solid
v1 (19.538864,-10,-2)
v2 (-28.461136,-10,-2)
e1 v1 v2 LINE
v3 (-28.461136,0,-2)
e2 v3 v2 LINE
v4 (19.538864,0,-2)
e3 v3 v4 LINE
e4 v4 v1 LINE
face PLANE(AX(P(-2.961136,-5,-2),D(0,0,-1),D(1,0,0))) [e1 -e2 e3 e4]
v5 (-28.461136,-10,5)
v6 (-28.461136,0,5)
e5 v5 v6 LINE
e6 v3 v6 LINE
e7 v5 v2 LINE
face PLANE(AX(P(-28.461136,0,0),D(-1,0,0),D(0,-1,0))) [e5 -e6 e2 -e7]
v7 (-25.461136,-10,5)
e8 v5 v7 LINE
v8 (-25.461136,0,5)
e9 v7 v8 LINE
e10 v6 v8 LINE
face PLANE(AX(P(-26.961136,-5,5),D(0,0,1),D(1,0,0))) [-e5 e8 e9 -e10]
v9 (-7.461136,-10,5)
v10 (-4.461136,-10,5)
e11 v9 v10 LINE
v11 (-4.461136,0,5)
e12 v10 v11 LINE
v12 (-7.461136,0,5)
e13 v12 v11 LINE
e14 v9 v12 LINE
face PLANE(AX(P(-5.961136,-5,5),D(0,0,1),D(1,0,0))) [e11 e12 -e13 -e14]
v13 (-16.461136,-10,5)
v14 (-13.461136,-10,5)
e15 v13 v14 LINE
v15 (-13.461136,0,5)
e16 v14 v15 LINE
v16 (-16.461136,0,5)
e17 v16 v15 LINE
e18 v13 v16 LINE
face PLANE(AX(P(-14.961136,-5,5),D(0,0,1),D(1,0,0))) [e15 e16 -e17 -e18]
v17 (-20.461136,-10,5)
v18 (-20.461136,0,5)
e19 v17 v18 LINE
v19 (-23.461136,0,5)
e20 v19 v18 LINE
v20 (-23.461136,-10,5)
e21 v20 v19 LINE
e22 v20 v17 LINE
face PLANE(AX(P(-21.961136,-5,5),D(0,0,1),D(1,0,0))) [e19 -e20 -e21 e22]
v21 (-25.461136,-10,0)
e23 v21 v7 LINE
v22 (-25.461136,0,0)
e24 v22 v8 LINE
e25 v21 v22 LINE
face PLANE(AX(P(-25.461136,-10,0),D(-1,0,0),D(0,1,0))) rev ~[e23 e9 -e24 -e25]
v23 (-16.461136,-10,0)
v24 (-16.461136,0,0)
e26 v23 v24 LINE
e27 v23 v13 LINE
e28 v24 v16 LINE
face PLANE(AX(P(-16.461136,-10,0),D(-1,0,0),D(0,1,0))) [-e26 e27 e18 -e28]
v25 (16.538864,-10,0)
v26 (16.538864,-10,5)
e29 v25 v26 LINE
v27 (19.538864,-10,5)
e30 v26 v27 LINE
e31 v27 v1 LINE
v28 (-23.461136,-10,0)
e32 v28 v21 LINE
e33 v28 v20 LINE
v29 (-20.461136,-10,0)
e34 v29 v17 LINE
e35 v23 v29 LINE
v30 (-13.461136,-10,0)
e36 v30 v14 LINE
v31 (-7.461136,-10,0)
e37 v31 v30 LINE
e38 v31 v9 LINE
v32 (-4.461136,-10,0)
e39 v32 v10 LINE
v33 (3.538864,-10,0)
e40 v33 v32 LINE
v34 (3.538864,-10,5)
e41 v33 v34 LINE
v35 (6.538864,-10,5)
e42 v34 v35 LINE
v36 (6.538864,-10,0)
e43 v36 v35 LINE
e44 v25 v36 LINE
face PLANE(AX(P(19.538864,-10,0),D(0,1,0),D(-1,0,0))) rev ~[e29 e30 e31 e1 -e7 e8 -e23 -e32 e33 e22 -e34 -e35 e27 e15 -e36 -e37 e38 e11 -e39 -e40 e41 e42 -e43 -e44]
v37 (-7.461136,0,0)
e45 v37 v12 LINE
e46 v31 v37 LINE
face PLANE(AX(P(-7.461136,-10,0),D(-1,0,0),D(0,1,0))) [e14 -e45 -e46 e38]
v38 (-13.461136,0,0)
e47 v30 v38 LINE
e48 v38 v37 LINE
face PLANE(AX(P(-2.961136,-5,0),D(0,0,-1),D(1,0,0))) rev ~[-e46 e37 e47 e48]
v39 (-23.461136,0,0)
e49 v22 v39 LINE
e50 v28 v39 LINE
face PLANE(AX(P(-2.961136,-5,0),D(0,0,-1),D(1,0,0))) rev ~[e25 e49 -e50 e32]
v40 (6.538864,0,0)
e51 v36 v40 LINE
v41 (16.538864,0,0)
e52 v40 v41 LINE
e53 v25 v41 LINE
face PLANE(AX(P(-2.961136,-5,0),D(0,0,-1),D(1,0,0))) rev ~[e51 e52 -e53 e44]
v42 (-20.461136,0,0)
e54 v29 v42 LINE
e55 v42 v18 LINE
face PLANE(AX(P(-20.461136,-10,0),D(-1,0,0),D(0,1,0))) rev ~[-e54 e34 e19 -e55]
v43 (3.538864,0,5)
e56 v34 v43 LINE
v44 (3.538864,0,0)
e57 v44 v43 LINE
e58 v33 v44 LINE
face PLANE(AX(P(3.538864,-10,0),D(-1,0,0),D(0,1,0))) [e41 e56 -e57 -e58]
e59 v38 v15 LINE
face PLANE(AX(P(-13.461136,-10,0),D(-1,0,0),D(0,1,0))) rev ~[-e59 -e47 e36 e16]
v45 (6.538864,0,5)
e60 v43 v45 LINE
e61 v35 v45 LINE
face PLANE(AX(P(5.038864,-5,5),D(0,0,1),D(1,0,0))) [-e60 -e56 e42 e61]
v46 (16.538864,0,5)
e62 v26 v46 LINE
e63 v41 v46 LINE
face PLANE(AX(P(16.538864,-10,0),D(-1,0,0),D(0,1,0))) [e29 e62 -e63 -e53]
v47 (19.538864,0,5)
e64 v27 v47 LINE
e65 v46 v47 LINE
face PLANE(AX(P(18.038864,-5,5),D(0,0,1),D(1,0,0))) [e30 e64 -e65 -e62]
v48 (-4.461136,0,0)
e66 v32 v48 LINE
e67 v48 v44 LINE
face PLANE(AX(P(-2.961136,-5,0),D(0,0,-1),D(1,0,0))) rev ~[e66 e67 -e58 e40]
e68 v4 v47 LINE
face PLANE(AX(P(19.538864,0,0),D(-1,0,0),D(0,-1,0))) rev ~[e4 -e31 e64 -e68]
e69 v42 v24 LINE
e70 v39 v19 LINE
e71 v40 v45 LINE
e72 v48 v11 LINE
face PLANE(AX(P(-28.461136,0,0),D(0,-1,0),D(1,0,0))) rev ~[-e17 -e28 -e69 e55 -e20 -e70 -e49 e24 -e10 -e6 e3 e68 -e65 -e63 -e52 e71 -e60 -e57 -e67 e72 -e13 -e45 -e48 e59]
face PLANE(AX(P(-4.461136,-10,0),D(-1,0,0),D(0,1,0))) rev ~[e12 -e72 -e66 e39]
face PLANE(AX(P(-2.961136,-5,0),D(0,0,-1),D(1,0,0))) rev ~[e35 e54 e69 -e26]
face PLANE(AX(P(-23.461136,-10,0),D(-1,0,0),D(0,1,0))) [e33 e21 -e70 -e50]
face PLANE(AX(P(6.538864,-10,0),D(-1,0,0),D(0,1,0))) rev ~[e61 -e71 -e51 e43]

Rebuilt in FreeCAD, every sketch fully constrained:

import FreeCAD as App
import Part
import Sketcher

doc = App.newDocument("Part")
params = doc.addObject("Spreadsheet::Sheet", "Params")
for row, (alias, value) in enumerate([
    ("sketch1_width", "3 mm"),
    ("sketch1_height", "10 mm"),
    ("pad1_length", "5 mm"),
    ("sketch2_width", "48 mm"),
    ("sketch2_height", "10 mm"),
    ("pad2_length", "2 mm"),
], start=1):
    params.set(f"A{row}", alias)
    params.set(f"B{row}", "=" + value)
    params.setAlias(f"B{row}", alias)

body = doc.addObject("PartDesign::Body", "Body")
body.AllowCompound = True

sketch1 = doc.addObject("Sketcher::SketchObject", "Sketch")
body.addObject(sketch1)
sketch1.AttachmentSupport = (doc.XY_Plane, [""])
sketch1.MapMode = "FlatFace"
sketch1.addGeometry([
    Part.LineSegment(App.Vector(-28.461136, 0, 0), App.Vector(-28.461136, -10, 0)),
    Part.LineSegment(App.Vector(-28.461136, -10, 0), App.Vector(-25.461136, -10, 0)),
    Part.LineSegment(App.Vector(-25.461136, -10, 0), App.Vector(-25.461136, 0, 0)),
    Part.LineSegment(App.Vector(-25.461136, 0, 0), App.Vector(-28.461136, 0, 0)),
    Part.LineSegment(App.Vector(-23.461136, 0, 0), App.Vector(-23.461136, -10, 0)),
    Part.LineSegment(App.Vector(-23.461136, -10, 0), App.Vector(-20.461136, -10, 0)),
    Part.LineSegment(App.Vector(-20.461136, -10, 0), App.Vector(-20.461136, 0, 0)),
    Part.LineSegment(App.Vector(-20.461136, 0, 0), App.Vector(-23.461136, 0, 0)),
    Part.LineSegment(App.Vector(-16.461136, 0, 0), App.Vector(-16.461136, -10, 0)),
    Part.LineSegment(App.Vector(-16.461136, -10, 0), App.Vector(-13.461136, -10, 0)),
    Part.LineSegment(App.Vector(-13.461136, -10, 0), App.Vector(-13.461136, 0, 0)),
    Part.LineSegment(App.Vector(-13.461136, 0, 0), App.Vector(-16.461136, 0, 0)),
    Part.LineSegment(App.Vector(-7.461136, 0, 0), App.Vector(-7.461136, -10, 0)),
    Part.LineSegment(App.Vector(-7.461136, -10, 0), App.Vector(-4.461136, -10, 0)),
    Part.LineSegment(App.Vector(-4.461136, -10, 0), App.Vector(-4.461136, 0, 0)),
    Part.LineSegment(App.Vector(-4.461136, 0, 0), App.Vector(-7.461136, 0, 0)),
    Part.LineSegment(App.Vector(3.538864, 0, 0), App.Vector(3.538864, -10, 0)),
    Part.LineSegment(App.Vector(3.538864, -10, 0), App.Vector(6.538864, -10, 0)),
    Part.LineSegment(App.Vector(6.538864, -10, 0), App.Vector(6.538864, 0, 0)),
    Part.LineSegment(App.Vector(6.538864, 0, 0), App.Vector(3.538864, 0, 0)),
    Part.LineSegment(App.Vector(16.538864, 0, 0), App.Vector(16.538864, -10, 0)),
    Part.LineSegment(App.Vector(16.538864, -10, 0), App.Vector(19.538864, -10, 0)),
    Part.LineSegment(App.Vector(19.538864, -10, 0), App.Vector(19.538864, 0, 0)),
    Part.LineSegment(App.Vector(19.538864, 0, 0), App.Vector(16.538864, 0, 0)),
], False)
sketch1.addConstraint([
    Sketcher.Constraint("Coincident", 0, 2, 1, 1),
    Sketcher.Constraint("Coincident", 1, 2, 2, 1),
    Sketcher.Constraint("Coincident", 2, 2, 3, 1),
    Sketcher.Constraint("Coincident", 3, 2, 0, 1),
    Sketcher.Constraint("Coincident", 4, 2, 5, 1),
    Sketcher.Constraint("Coincident", 5, 2, 6, 1),
    Sketcher.Constraint("Coincident", 6, 2, 7, 1),
    Sketcher.Constraint("Coincident", 7, 2, 4, 1),
    Sketcher.Constraint("Coincident", 8, 2, 9, 1),
    Sketcher.Constraint("Coincident", 9, 2, 10, 1),
    Sketcher.Constraint("Coincident", 10, 2, 11, 1),
    Sketcher.Constraint("Coincident", 11, 2, 8, 1),
    Sketcher.Constraint("Coincident", 12, 2, 13, 1),
    Sketcher.Constraint("Coincident", 13, 2, 14, 1),
    Sketcher.Constraint("Coincident", 14, 2, 15, 1),
    Sketcher.Constraint("Coincident", 15, 2, 12, 1),
    Sketcher.Constraint("Coincident", 16, 2, 17, 1),
    Sketcher.Constraint("Coincident", 17, 2, 18, 1),
    Sketcher.Constraint("Coincident", 18, 2, 19, 1),
    Sketcher.Constraint("Coincident", 19, 2, 16, 1),
    Sketcher.Constraint("Coincident", 20, 2, 21, 1),
    Sketcher.Constraint("Coincident", 21, 2, 22, 1),
    Sketcher.Constraint("Coincident", 22, 2, 23, 1),
    Sketcher.Constraint("Coincident", 23, 2, 20, 1),
    Sketcher.Constraint("Vertical", 0),
    Sketcher.Constraint("Horizontal", 1),
    Sketcher.Constraint("Vertical", 2),
    Sketcher.Constraint("Horizontal", 3),
    Sketcher.Constraint("Vertical", 4),
    Sketcher.Constraint("Horizontal", 5),
    Sketcher.Constraint("Vertical", 6),
    Sketcher.Constraint("Horizontal", 7),
    Sketcher.Constraint("Vertical", 8),
    Sketcher.Constraint("Horizontal", 9),
    Sketcher.Constraint("Vertical", 10),
    Sketcher.Constraint("Horizontal", 11),
    Sketcher.Constraint("Vertical", 12),
    Sketcher.Constraint("Horizontal", 13),
    Sketcher.Constraint("Vertical", 14),
    Sketcher.Constraint("Horizontal", 15),
    Sketcher.Constraint("Vertical", 16),
    Sketcher.Constraint("Horizontal", 17),
    Sketcher.Constraint("Vertical", 18),
    Sketcher.Constraint("Horizontal", 19),
    Sketcher.Constraint("Vertical", 20),
    Sketcher.Constraint("Horizontal", 21),
    Sketcher.Constraint("Vertical", 22),
    Sketcher.Constraint("Horizontal", 23),
    Sketcher.Constraint("PointOnObject", 2, 2, -1),
    Sketcher.Constraint("PointOnObject", 6, 2, -1),
    Sketcher.Constraint("PointOnObject", 10, 2, -1),
    Sketcher.Constraint("PointOnObject", 14, 2, -1),
    Sketcher.Constraint("PointOnObject", 18, 2, -1),
    Sketcher.Constraint("PointOnObject", 22, 2, -1),
    Sketcher.Constraint("Horizontal", 1, 2, 4, 2),
    Sketcher.Constraint("Horizontal", 5, 2, 8, 2),
    Sketcher.Constraint("Horizontal", 9, 2, 12, 2),
    Sketcher.Constraint("Horizontal", 13, 2, 16, 2),
    Sketcher.Constraint("Horizontal", 17, 2, 20, 2),
    Sketcher.Constraint("Equal", 3, 5),
    Sketcher.Constraint("Equal", 7, 9),
    Sketcher.Constraint("Equal", 11, 13),
    Sketcher.Constraint("Equal", 15, 17),
    Sketcher.Constraint("Equal", 19, 21),
    Sketcher.Constraint("DistanceX", 1, 1, 1, 2, 3.0),
    Sketcher.Constraint("DistanceY", 0, 2, 0, 1, 10.0),
    Sketcher.Constraint("DistanceX", 1, 2, 4, 2, 2.0),
    Sketcher.Constraint("DistanceX", 5, 2, 8, 2, 4.0),
    Sketcher.Constraint("DistanceX", 9, 2, 12, 2, 6.0),
    Sketcher.Constraint("DistanceX", 13, 2, 16, 2, 8.0),
    Sketcher.Constraint("DistanceX", 17, 2, 20, 2, 10.0),
    Sketcher.Constraint("DistanceX", 0, 2, -1, 1, 28.461136),
])
sketch1.setExpression("Constraints[64]", "Params.sketch1_width")
sketch1.setExpression("Constraints[65]", "Params.sketch1_height")
pad1 = doc.addObject("PartDesign::Pad", "Pad")
body.addObject(pad1)
pad1.Profile = sketch1
pad1.setExpression("Length", "Params.pad1_length")

sketch2 = doc.addObject("Sketcher::SketchObject", "Sketch001")
body.addObject(sketch2)
sketch2.AttachmentSupport = (doc.XY_Plane, [""])
sketch2.MapMode = "FlatFace"
sketch2.addGeometry([
    Part.LineSegment(App.Vector(19.538864, 0, 0), App.Vector(19.538864, -10, 0)),
    Part.LineSegment(App.Vector(19.538864, -10, 0), App.Vector(-28.461136, -10, 0)),
    Part.LineSegment(App.Vector(-28.461136, -10, 0), App.Vector(-28.461136, 0, 0)),
    Part.LineSegment(App.Vector(-28.461136, 0, 0), App.Vector(19.538864, 0, 0)),
], False)
sketch2.addConstraint([
    Sketcher.Constraint("Coincident", 0, 2, 1, 1),
    Sketcher.Constraint("Coincident", 1, 2, 2, 1),
    Sketcher.Constraint("Coincident", 2, 2, 3, 1),
    Sketcher.Constraint("Coincident", 3, 2, 0, 1),
    Sketcher.Constraint("Vertical", 0),
    Sketcher.Constraint("Horizontal", 1),
    Sketcher.Constraint("Vertical", 2),
    Sketcher.Constraint("Horizontal", 3),
    Sketcher.Constraint("PointOnObject", 2, 2, -1),
    Sketcher.Constraint("DistanceX", 1, 2, 1, 1, 48.0),
    Sketcher.Constraint("DistanceY", 0, 2, 0, 1, 10.0),
    Sketcher.Constraint("DistanceX", -1, 1, 0, 2, 19.538864),
])
sketch2.setExpression("Constraints[9]", "Params.sketch2_width")
sketch2.setExpression("Constraints[10]", "Params.sketch2_height")
pad2 = doc.addObject("PartDesign::Pad", "Pad001")
body.addObject(pad2)
pad2.Profile = sketch2
pad2.setExpression("Length", "Params.pad2_length")
pad2.Reversed = True

doc.recompute()
